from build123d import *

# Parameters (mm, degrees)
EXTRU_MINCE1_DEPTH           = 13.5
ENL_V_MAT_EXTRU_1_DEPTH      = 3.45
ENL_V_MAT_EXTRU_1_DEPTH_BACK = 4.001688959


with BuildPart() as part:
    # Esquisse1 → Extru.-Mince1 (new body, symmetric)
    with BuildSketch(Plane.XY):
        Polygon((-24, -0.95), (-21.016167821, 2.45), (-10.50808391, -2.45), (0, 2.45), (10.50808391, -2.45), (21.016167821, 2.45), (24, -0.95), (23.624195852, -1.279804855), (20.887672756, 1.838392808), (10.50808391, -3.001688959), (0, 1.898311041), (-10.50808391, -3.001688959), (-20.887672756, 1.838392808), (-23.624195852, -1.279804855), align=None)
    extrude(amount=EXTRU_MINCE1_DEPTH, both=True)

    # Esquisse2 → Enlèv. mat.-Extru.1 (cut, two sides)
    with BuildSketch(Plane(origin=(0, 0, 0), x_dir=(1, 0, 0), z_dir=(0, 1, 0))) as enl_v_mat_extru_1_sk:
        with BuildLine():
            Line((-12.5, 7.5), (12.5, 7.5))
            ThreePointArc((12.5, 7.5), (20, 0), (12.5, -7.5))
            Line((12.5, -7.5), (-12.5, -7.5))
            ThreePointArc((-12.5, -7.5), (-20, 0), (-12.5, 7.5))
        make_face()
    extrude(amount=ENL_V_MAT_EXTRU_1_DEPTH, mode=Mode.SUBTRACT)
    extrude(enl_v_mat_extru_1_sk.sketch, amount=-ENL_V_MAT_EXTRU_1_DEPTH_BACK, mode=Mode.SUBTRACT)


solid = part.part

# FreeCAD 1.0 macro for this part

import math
import FreeCAD as App
import Part
import Sketcher
Q = App.Units.Quantity


def add_polygon(sketch, points):
    """Adds a closed chain of lines whose ends are joined by coincident constraints."""
    first, n = sketch.GeometryCount, len(points)
    for a, b in zip(points, points[1:] + points[:1]):
        sketch.addGeometry(Part.LineSegment(App.Vector(*a, 0), App.Vector(*b, 0)), False)
    for i in range(n):
        sketch.addConstraint(Sketcher.Constraint("Coincident", first + i, 2, first + (i + 1) % n, 1))

doc = App.newDocument("Part")
body = doc.addObject("PartDesign::Body", "Body")

# Sketch on XY plane
sketch1 = body.newObject("Sketcher::SketchObject", "Sketch")
sketch1.AttachmentSupport = (doc.getObject("XY_Plane"), [""])
sketch1.MapMode = "FlatFace"
add_polygon(sketch1, [(-21, 2.5), (-24, -0.9), (-23.6, -1.3), (-20.9, 1.8), (-10.5, -3), (0, 1.9), (10.5, -3), (20.9, 1.8), (23.6, -1.3), (24, -0.9), (21, 2.5), (10.5, -2.5), (0, 2.5), (-10.5, -2.5)])  # lines 0-13
sketch1.addConstraint([
    Sketcher.Constraint("Symmetric", 3, 2, 5, 2, -2),
    Sketcher.Constraint("Symmetric", 2, 2, 6, 2, -2),
    Sketcher.Constraint("Symmetric", 1, 2, 7, 2, -2),
    Sketcher.Constraint("Symmetric", 0, 2, 8, 2, -2),
    Sketcher.Constraint("Symmetric", 10, 2, 12, 2, -2),
    Sketcher.Constraint("Symmetric", 9, 2, 13, 2, -2),
    Sketcher.Constraint("PointOnObject", 4, 2, -2),
    Sketcher.Constraint("PointOnObject", 11, 2, -2),
    Sketcher.Constraint("Perpendicular", 0, 1),
    Sketcher.Constraint("Perpendicular", 1, 2),
    Sketcher.Constraint("Parallel", 3, 5),
    Sketcher.Constraint("Parallel", 6, 10),
    Sketcher.Constraint("Parallel", 5, 11),
    Sketcher.Constraint("Horizontal", 9, 2, 11, 2),
    Sketcher.Constraint("Vertical", 5, 2, 10, 2),
    Sketcher.Constraint("Angle", 3, Q("-25 deg")),
    Sketcher.Constraint("DistanceX", 0, 2, -1, 1, Q("24 mm")),
    Sketcher.Constraint("Distance", 1, Q("0.5 mm")),
    Sketcher.Constraint("DistanceY", 3, 2, 4, 2, Q("4.9 mm")),
    Sketcher.Constraint("DistanceY", 8, 2, 9, 2, Q("3.4 mm")),
    Sketcher.Constraint("DistanceY", 0, 2, -1, 1, Q("0.95 mm")),
    Sketcher.Constraint("Distance", 2, Q("4.1487 mm")),
])
pad1 = body.newObject("PartDesign::Pad", "Pad")
pad1.Profile = sketch1
pad1.Length = 27
pad1.Midplane = True

# Sketch on XZ plane
sketch2 = body.newObject("Sketcher::SketchObject", "Sketch001")
sketch2.AttachmentSupport = (doc.getObject("XZ_Plane"), [""])
sketch2.MapMode = "FlatFace"
sketch2.addGeometry([
    Part.LineSegment(App.Vector(12, -8, 0), App.Vector(-12, -8, 0)),
    Part.ArcOfCircle(Part.Circle(App.Vector(-12, 0, 0), App.Vector(0, 0, 1), 8), math.radians(90), math.radians(270)),
    Part.LineSegment(App.Vector(-12, 8, 0), App.Vector(12, 8, 0)),
    Part.ArcOfCircle(Part.Circle(App.Vector(12, 0, 0), App.Vector(0, 0, 1), 8), math.radians(-90), math.radians(90)),
], False)
sketch2.addConstraint([
    Sketcher.Constraint("Tangent", 0, 2, 1, 2),
    Sketcher.Constraint("Tangent", 1, 1, 2, 1),
    Sketcher.Constraint("Tangent", 2, 2, 3, 2),
    Sketcher.Constraint("Tangent", 3, 1, 0, 1),
    Sketcher.Constraint("Horizontal", 0),
    Sketcher.Constraint("Horizontal", 2),
    Sketcher.Constraint("Symmetric", 1, 3, 3, 3, -1, 1),
    Sketcher.Constraint("Radius", 1, Q("7.5 mm")),
    Sketcher.Constraint("DistanceX", 0, 2, 0, 1, Q("25 mm")),
])
pocket1 = body.newObject("PartDesign::Pocket", "Pocket")
pocket1.Profile = sketch2
pocket1.Type = "ThroughAll"
pocket1.Midplane = True

doc.recompute()
